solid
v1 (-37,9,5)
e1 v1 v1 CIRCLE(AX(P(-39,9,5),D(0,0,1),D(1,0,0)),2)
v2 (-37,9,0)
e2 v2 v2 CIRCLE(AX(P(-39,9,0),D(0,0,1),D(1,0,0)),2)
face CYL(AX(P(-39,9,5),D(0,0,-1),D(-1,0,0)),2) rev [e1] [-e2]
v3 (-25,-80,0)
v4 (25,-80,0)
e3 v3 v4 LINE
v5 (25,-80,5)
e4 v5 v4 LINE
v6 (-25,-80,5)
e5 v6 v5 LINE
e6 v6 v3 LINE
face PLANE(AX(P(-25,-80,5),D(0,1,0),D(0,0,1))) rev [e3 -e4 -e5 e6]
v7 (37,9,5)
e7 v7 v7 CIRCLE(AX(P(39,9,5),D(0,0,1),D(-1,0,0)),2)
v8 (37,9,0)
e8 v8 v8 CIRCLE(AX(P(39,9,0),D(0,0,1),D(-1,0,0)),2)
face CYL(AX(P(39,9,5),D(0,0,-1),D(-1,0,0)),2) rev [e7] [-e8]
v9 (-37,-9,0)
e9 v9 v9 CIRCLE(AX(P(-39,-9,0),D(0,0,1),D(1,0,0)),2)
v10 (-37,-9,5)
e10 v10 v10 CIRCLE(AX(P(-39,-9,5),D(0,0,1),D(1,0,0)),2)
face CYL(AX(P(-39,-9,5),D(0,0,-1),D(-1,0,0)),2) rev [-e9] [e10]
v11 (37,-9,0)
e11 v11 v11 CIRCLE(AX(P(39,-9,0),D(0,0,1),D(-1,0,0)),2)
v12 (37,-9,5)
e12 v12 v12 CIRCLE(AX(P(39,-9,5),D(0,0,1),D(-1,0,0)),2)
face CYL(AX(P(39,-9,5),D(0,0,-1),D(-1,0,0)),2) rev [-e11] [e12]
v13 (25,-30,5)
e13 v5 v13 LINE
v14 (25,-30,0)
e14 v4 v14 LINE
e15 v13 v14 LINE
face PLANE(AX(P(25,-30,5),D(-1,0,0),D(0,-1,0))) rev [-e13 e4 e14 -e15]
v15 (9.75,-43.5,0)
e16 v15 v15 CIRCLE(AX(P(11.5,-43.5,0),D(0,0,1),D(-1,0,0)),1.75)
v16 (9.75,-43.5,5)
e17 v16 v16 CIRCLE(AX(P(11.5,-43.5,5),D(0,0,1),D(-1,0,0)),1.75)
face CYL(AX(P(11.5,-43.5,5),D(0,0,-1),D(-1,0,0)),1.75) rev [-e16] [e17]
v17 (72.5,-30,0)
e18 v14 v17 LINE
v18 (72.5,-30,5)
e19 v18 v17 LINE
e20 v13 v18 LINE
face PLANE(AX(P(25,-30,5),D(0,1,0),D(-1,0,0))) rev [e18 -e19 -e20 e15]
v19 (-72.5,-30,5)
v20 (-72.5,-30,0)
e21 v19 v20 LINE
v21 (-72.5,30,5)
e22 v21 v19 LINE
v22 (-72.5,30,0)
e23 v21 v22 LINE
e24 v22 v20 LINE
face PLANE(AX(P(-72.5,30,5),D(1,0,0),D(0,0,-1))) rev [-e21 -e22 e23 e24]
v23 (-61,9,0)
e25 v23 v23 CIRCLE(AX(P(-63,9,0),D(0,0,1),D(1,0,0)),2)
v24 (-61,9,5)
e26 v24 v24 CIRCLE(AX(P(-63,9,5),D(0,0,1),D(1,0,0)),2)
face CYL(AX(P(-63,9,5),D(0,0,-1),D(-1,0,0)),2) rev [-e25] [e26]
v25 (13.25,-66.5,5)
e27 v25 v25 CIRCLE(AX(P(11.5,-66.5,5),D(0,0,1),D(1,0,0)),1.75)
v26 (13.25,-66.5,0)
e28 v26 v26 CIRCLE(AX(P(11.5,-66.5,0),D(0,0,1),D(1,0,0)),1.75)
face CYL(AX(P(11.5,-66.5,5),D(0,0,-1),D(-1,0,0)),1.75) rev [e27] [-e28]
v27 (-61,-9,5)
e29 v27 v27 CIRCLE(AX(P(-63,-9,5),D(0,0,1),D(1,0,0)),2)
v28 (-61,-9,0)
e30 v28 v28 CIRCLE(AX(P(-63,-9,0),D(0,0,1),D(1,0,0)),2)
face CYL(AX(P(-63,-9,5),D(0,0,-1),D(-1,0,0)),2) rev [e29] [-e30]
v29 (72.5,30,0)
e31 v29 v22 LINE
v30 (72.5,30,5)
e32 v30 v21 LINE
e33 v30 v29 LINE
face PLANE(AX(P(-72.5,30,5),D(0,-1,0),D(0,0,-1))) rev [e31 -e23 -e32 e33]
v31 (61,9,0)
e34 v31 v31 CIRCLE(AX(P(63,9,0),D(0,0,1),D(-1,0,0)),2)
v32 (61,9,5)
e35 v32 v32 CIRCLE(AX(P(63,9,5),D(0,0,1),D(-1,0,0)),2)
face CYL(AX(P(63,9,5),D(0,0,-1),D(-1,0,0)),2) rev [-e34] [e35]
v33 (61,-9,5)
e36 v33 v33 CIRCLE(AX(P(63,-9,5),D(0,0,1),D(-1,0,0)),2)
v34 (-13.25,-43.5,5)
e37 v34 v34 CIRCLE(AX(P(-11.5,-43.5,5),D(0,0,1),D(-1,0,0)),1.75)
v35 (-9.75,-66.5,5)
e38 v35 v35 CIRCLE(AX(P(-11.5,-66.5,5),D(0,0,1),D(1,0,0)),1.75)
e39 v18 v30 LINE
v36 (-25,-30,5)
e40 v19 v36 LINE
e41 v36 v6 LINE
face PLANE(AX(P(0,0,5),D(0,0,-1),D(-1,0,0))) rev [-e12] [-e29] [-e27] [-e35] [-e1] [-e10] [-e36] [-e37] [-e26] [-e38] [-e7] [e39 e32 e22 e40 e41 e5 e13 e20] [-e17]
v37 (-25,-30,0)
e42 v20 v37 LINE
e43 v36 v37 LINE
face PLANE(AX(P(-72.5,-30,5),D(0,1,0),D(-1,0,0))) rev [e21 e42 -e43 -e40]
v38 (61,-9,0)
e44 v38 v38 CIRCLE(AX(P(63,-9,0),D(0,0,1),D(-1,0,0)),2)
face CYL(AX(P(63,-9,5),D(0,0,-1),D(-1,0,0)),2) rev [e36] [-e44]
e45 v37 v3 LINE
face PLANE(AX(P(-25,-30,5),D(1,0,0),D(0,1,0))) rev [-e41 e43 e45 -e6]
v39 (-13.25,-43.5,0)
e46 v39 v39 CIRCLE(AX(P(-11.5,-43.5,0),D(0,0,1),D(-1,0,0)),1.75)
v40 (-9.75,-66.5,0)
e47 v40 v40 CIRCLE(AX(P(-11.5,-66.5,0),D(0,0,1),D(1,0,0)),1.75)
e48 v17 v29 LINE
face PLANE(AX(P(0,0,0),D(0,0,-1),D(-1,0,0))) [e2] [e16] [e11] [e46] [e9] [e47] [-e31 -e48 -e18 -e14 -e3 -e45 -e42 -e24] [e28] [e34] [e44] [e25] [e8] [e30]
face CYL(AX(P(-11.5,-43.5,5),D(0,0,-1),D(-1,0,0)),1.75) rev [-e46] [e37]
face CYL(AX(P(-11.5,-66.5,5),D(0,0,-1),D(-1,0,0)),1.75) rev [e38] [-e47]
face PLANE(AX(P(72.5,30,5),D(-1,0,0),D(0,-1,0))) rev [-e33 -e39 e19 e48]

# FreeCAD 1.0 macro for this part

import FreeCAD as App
import Part
import Sketcher
from FreeCAD import Vector


def add_polygon(sketch, points):
    """Adds a closed chain of lines whose ends are joined by coincident constraints."""
    first, n = sketch.GeometryCount, len(points)
    for a, b in zip(points, points[1:] + points[:1]):
        sketch.addGeometry(Part.LineSegment(App.Vector(*a, 0), App.Vector(*b, 0)), False)
    for i in range(n):
        sketch.addConstraint(Sketcher.Constraint("Coincident", first + i, 2, first + (i + 1) % n, 1))

doc = App.newDocument("Part")
params = doc.addObject("Spreadsheet::Sheet", "Params")
for row, (alias, value) in enumerate([
    ("sketch1_diameter", "4 mm"),
    ("sketch1_diameter2", "3.5 mm"),
    ("sketch1_width", "145 mm"),
    ("sketch1_width2", "50 mm"),
    ("sketch1_height", "60 mm"),
    ("pad1_length", "5 mm"),
], start=1):
    params.set(f"A{row}", alias)
    params.set(f"B{row}", "=" + value)
    params.setAlias(f"B{row}", alias)

body = doc.addObject("PartDesign::Body", "Body")

# Sketch on XY plane
sketch1 = body.newObject("Sketcher::SketchObject", "Sketch")
sketch1.AttachmentSupport = (doc.getObject("XY_Plane"), [""])
sketch1.MapMode = "FlatFace"
add_polygon(sketch1, [(72.5, 30), (-72.5, 30), (-72.5, -30), (-25, -30), (-25, -80), (25, -80), (25, -30), (72.5, -30)])  # lines 0-7
sketch1.addGeometry(Part.Circle(Vector(11.5, -66.5, 0), Vector(0, 0, 1), 1.8), False)  # 8
sketch1.addGeometry(Part.Circle(Vector(11.5, -43.5, 0), Vector(0, 0, 1), 1.8), False)  # 9
sketch1.addGeometry(Part.Circle(Vector(-11.5, -66.5, 0), Vector(0, 0, 1), 1.8), False)  # 10
sketch1.addGeometry(Part.Circle(Vector(-11.5, -43.5, 0), Vector(0, 0, 1), 1.8), False)  # 11
sketch1.addGeometry(Part.Circle(Vector(63, -9, 0), Vector(0, 0, 1), 2), False)  # 12
sketch1.addGeometry(Part.Circle(Vector(39, -9, 0), Vector(0, 0, 1), 2), False)  # 13
sketch1.addGeometry(Part.Circle(Vector(63, 9, 0), Vector(0, 0, 1), 2), False)  # 14
sketch1.addGeometry(Part.Circle(Vector(39, 9, 0), Vector(0, 0, 1), 2), False)  # 15
sketch1.addGeometry(Part.Circle(Vector(-39, -9, 0), Vector(0, 0, 1), 2), False)  # 16
sketch1.addGeometry(Part.Circle(Vector(-63, -9, 0), Vector(0, 0, 1), 2), False)  # 17
sketch1.addGeometry(Part.Circle(Vector(-39, 9, 0), Vector(0, 0, 1), 2), False)  # 18
sketch1.addGeometry(Part.Circle(Vector(-63, 9, 0), Vector(0, 0, 1), 2), False)  # 19
sketch1.addConstraint([
    Sketcher.Constraint("Horizontal", 0),
    Sketcher.Constraint("Vertical", 1),
    Sketcher.Constraint("Horizontal", 2),
    Sketcher.Constraint("Vertical", 3),
    Sketcher.Constraint("Horizontal", 4),
    Sketcher.Constraint("Vertical", 5),
    Sketcher.Constraint("Horizontal", 6),
    Sketcher.Constraint("Vertical", 7),
    Sketcher.Constraint("Equal", 8, 9),
    Sketcher.Constraint("Equal", 9, 10),
    Sketcher.Constraint("Equal", 10, 11),
    Sketcher.Constraint("Equal", 12, 13),
    Sketcher.Constraint("Equal", 13, 14),
    Sketcher.Constraint("Equal", 14, 15),
    Sketcher.Constraint("Equal", 15, 16),
    Sketcher.Constraint("Equal", 16, 17),
    Sketcher.Constraint("Equal", 17, 18),
    Sketcher.Constraint("Equal", 18, 19),
    Sketcher.Constraint("Symmetric", 15, 3, 16, 3, -1, 1),
    Sketcher.Constraint("Symmetric", 14, 3, 17, 3, -1, 1),
    Sketcher.Constraint("Symmetric", 13, 3, 18, 3, -1, 1),
    Sketcher.Constraint("Symmetric", 12, 3, 19, 3, -1, 1),
    Sketcher.Constraint("Symmetric", 0, 2, 6, 2, -1, 1),
    Sketcher.Constraint("Symmetric", 8, 3, 10, 3, -2),
    Sketcher.Constraint("Symmetric", 9, 3, 11, 3, -2),
    Sketcher.Constraint("Symmetric", 13, 3, 16, 3, -2),
    Sketcher.Constraint("Symmetric", 12, 3, 17, 3, -2),
    Sketcher.Constraint("Symmetric", 2, 2, 5, 2, -2),
    Sketcher.Constraint("Horizontal", 12, 3, 13, 3),
    Sketcher.Constraint("Vertical", 8, 3, 9, 3),
    Sketcher.Constraint("Equal", 4, 3),
    Sketcher.Constraint("Diameter", 12, 4.0),
    Sketcher.Constraint("Diameter", 8, 3.5),
    Sketcher.Constraint("DistanceX", 0, 2, 0, 1, 145.0),
    Sketcher.Constraint("DistanceX", 4, 1, 4, 2, 50.0),
    Sketcher.Constraint("DistanceY", 1, 2, 1, 1, 60.0),
    Sketcher.Constraint("DistanceX", -1, 1, 12, 3, 63.0),
    Sketcher.Constraint("DistanceY", 12, 3, -1, 1, 9.0),
    Sketcher.Constraint("DistanceX", -1, 1, 13, 3, 39.0),
    Sketcher.Constraint("DistanceY", 8, 3, 9, 3, 23.0),
    Sketcher.Constraint("DistanceX", 10, 3, 8, 3, 23.0),
    Sketcher.Constraint("DistanceY", 8, 3, -1, 1, 66.5),
])
sketch1.setExpression("Constraints[39]", "Params.sketch1_diameter")
sketch1.setExpression("Constraints[40]", "Params.sketch1_diameter2")
sketch1.setExpression("Constraints[41]", "Params.sketch1_width")
sketch1.setExpression("Constraints[42]", "Params.sketch1_width2")
sketch1.setExpression("Constraints[43]", "Params.sketch1_height")
pad1 = body.newObject("PartDesign::Pad", "Pad")
pad1.Profile = sketch1
pad1.setExpression("Length", "Params.pad1_length")

doc.recompute()
